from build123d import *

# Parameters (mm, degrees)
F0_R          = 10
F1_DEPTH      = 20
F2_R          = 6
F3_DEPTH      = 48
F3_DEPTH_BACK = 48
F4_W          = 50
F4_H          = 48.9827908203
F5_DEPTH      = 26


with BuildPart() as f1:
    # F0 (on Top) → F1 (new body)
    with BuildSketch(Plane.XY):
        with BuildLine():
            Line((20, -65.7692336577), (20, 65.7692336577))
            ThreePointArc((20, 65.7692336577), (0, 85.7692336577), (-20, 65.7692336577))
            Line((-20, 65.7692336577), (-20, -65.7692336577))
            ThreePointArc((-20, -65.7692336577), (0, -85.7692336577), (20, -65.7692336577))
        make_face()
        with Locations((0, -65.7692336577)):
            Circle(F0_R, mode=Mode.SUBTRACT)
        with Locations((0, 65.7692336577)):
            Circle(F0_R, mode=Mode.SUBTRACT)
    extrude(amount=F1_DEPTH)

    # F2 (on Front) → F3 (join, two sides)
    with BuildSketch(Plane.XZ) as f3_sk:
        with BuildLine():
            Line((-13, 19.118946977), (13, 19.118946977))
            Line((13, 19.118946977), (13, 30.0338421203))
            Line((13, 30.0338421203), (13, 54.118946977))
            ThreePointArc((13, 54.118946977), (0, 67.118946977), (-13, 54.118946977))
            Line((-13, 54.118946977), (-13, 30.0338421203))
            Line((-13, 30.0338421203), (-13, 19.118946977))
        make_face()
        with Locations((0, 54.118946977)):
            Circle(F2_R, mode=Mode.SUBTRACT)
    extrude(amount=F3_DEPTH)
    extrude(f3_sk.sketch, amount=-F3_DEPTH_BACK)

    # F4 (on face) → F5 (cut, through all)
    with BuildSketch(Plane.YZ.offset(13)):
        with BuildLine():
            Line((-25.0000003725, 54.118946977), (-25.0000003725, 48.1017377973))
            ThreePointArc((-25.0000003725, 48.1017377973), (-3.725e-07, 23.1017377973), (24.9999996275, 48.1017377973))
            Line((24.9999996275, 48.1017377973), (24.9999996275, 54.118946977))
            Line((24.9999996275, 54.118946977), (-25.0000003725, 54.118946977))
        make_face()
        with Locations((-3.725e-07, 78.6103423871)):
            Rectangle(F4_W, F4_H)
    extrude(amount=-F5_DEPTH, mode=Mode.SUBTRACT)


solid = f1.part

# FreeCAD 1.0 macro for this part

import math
import FreeCAD as App
import Part
import Sketcher
from FreeCAD import Vector

doc = App.newDocument("Part")
body = doc.addObject("PartDesign::Body", "Body")

sketch1 = body.newObject("Sketcher::SketchObject", "Sketch")
sketch1.AttachmentSupport = (doc.getObject("XY_Plane"), [""])
sketch1.MapMode = "FlatFace"
sketch1.addGeometry(Part.LineSegment(Vector(20, -66, 0), Vector(20, 66, 0)), False)
sketch1.addGeometry(Part.ArcOfCircle(Part.Circle(Vector(0, 66, 0), Vector(0, 0, 1), 20), math.radians(0), math.radians(180)), False)
sketch1.addGeometry(Part.LineSegment(Vector(-20, 66, 0), Vector(-20, -66, 0)), False)
sketch1.addGeometry(Part.ArcOfCircle(Part.Circle(Vector(0, -66, 0), Vector(0, 0, 1), 20), math.radians(180), math.radians(360)), False)
sketch1.addGeometry(Part.Circle(Vector(0, -66, 0), Vector(0, 0, 1), 10), False)
sketch1.addGeometry(Part.Circle(Vector(0, 66, 0), Vector(0, 0, 1), 10), False)
sketch1.addConstraint(Sketcher.Constraint("Tangent", 0, 2, 1, 1))
sketch1.addConstraint(Sketcher.Constraint("Tangent", 1, 2, 2, 1))
sketch1.addConstraint(Sketcher.Constraint("Tangent", 2, 2, 3, 1))
sketch1.addConstraint(Sketcher.Constraint("Tangent", 3, 2, 0, 1))
sketch1.addConstraint(Sketcher.Constraint("Vertical", 0))
sketch1.addConstraint(Sketcher.Constraint("Vertical", 2))
sketch1.addConstraint(Sketcher.Constraint("Coincident", 4, 3, 3, 3))
sketch1.addConstraint(Sketcher.Constraint("Coincident", 5, 3, 1, 3))
sketch1.addConstraint(Sketcher.Constraint("Equal", 4, 5))
sketch1.addConstraint(Sketcher.Constraint("Symmetric", 1, 3, 3, 3, -1, 1))
sketch1.addConstraint(Sketcher.Constraint("Diameter", 4, 20.0))
sketch1.addConstraint(Sketcher.Constraint("Radius", 1, 20.0))
sketch1.addConstraint(Sketcher.Constraint("DistanceY", 0, 1, 0, 2, 131.538467))
pad1 = body.newObject("PartDesign::Pad", "Pad")
pad1.Profile = sketch1
pad1.Length = 20

sketch2 = body.newObject("Sketcher::SketchObject", "Sketch001")
sketch2.AttachmentSupport = (doc.getObject("XZ_Plane"), [""])
sketch2.MapMode = "FlatFace"
sketch2.addGeometry(Part.LineSegment(Vector(-13, 19, 0), Vector(13, 19, 0)), False)
sketch2.addGeometry(Part.LineSegment(Vector(13, 19, 0), Vector(13, 54, 0)), False)
sketch2.addGeometry(Part.ArcOfCircle(Part.Circle(Vector(0, 54, 0), Vector(0, 0, 1), 13), math.radians(0), math.radians(180)), False)
sketch2.addGeometry(Part.LineSegment(Vector(-13, 54, 0), Vector(-13, 19, 0)), False)
sketch2.addGeometry(Part.Circle(Vector(0, 54, 0), Vector(0, 0, 1), 6), False)
sketch2.addConstraint(Sketcher.Constraint("Coincident", 0, 2, 1, 1))
sketch2.addConstraint(Sketcher.Constraint("Tangent", 1, 2, 2, 1))
sketch2.addConstraint(Sketcher.Constraint("Tangent", 2, 2, 3, 1))
sketch2.addConstraint(Sketcher.Constraint("Coincident", 3, 2, 0, 1))
sketch2.addConstraint(Sketcher.Constraint("Horizontal", 0))
sketch2.addConstraint(Sketcher.Constraint("Vertical", 1))
sketch2.addConstraint(Sketcher.Constraint("Vertical", 3))
sketch2.addConstraint(Sketcher.Constraint("Coincident", 4, 3, 2, 3))
sketch2.addConstraint(Sketcher.Constraint("PointOnObject", 2, 3, -2))
sketch2.addConstraint(Sketcher.Constraint("Diameter", 4, 12.0))
sketch2.addConstraint(Sketcher.Constraint("Radius", 2, 13.0))
sketch2.addConstraint(Sketcher.Constraint("DistanceY", 1, 1, 1, 2, 35.0))
sketch2.addConstraint(Sketcher.Constraint("DistanceY", -1, 1, 2, 3, 54.118947))
pad2 = body.newObject("PartDesign::Pad", "Pad001")
pad2.Profile = sketch2
pad2.Type = "TwoLengths"
pad2.Length = 48
pad2.Length2 = 48

sketch3 = body.newObject("Sketcher::SketchObject", "Sketch002")
sketch3.AttachmentSupport = (doc.getObject("YZ_Plane"), [""])
sketch3.MapMode = "FlatFace"
sketch3.AttachmentOffset = App.Placement(Vector(0, 0, 13), App.Rotation())
sketch3.addGeometry(Part.ArcOfCircle(Part.Circle(Vector(0, 48, 0), Vector(0, 0, 1), 25), math.radians(180), math.radians(360)), False)
sketch3.addGeometry(Part.LineSegment(Vector(25, 48, 0), Vector(25, 103, 0)), False)
sketch3.addGeometry(Part.LineSegment(Vector(25, 103, 0), Vector(-25, 103, 0)), False)
sketch3.addGeometry(Part.LineSegment(Vector(-25, 103, 0), Vector(-25, 48, 0)), False)
sketch3.addConstraint(Sketcher.Constraint("Tangent", 0, 2, 1, 1))
sketch3.addConstraint(Sketcher.Constraint("Coincident", 1, 2, 2, 1))
sketch3.addConstraint(Sketcher.Constraint("Coincident", 2, 2, 3, 1))
sketch3.addConstraint(Sketcher.Constraint("Tangent", 3, 2, 0, 1))
sketch3.addConstraint(Sketcher.Constraint("Vertical", 1))
sketch3.addConstraint(Sketcher.Constraint("Horizontal", 2))
sketch3.addConstraint(Sketcher.Constraint("Vertical", 3))
sketch3.addConstraint(Sketcher.Constraint("PointOnObject", 0, 3, -2))
sketch3.addConstraint(Sketcher.Constraint("Radius", 0, 25.0))
sketch3.addConstraint(Sketcher.Constraint("DistanceY", 1, 1, 1, 2, 55.0))
sketch3.addConstraint(Sketcher.Constraint("DistanceY", -1, 1, 0, 3, 48.101738))
pocket1 = body.newObject("PartDesign::Pocket", "Pocket")
pocket1.Profile = sketch3
pocket1.Type = "ThroughAll"

doc.recompute()
